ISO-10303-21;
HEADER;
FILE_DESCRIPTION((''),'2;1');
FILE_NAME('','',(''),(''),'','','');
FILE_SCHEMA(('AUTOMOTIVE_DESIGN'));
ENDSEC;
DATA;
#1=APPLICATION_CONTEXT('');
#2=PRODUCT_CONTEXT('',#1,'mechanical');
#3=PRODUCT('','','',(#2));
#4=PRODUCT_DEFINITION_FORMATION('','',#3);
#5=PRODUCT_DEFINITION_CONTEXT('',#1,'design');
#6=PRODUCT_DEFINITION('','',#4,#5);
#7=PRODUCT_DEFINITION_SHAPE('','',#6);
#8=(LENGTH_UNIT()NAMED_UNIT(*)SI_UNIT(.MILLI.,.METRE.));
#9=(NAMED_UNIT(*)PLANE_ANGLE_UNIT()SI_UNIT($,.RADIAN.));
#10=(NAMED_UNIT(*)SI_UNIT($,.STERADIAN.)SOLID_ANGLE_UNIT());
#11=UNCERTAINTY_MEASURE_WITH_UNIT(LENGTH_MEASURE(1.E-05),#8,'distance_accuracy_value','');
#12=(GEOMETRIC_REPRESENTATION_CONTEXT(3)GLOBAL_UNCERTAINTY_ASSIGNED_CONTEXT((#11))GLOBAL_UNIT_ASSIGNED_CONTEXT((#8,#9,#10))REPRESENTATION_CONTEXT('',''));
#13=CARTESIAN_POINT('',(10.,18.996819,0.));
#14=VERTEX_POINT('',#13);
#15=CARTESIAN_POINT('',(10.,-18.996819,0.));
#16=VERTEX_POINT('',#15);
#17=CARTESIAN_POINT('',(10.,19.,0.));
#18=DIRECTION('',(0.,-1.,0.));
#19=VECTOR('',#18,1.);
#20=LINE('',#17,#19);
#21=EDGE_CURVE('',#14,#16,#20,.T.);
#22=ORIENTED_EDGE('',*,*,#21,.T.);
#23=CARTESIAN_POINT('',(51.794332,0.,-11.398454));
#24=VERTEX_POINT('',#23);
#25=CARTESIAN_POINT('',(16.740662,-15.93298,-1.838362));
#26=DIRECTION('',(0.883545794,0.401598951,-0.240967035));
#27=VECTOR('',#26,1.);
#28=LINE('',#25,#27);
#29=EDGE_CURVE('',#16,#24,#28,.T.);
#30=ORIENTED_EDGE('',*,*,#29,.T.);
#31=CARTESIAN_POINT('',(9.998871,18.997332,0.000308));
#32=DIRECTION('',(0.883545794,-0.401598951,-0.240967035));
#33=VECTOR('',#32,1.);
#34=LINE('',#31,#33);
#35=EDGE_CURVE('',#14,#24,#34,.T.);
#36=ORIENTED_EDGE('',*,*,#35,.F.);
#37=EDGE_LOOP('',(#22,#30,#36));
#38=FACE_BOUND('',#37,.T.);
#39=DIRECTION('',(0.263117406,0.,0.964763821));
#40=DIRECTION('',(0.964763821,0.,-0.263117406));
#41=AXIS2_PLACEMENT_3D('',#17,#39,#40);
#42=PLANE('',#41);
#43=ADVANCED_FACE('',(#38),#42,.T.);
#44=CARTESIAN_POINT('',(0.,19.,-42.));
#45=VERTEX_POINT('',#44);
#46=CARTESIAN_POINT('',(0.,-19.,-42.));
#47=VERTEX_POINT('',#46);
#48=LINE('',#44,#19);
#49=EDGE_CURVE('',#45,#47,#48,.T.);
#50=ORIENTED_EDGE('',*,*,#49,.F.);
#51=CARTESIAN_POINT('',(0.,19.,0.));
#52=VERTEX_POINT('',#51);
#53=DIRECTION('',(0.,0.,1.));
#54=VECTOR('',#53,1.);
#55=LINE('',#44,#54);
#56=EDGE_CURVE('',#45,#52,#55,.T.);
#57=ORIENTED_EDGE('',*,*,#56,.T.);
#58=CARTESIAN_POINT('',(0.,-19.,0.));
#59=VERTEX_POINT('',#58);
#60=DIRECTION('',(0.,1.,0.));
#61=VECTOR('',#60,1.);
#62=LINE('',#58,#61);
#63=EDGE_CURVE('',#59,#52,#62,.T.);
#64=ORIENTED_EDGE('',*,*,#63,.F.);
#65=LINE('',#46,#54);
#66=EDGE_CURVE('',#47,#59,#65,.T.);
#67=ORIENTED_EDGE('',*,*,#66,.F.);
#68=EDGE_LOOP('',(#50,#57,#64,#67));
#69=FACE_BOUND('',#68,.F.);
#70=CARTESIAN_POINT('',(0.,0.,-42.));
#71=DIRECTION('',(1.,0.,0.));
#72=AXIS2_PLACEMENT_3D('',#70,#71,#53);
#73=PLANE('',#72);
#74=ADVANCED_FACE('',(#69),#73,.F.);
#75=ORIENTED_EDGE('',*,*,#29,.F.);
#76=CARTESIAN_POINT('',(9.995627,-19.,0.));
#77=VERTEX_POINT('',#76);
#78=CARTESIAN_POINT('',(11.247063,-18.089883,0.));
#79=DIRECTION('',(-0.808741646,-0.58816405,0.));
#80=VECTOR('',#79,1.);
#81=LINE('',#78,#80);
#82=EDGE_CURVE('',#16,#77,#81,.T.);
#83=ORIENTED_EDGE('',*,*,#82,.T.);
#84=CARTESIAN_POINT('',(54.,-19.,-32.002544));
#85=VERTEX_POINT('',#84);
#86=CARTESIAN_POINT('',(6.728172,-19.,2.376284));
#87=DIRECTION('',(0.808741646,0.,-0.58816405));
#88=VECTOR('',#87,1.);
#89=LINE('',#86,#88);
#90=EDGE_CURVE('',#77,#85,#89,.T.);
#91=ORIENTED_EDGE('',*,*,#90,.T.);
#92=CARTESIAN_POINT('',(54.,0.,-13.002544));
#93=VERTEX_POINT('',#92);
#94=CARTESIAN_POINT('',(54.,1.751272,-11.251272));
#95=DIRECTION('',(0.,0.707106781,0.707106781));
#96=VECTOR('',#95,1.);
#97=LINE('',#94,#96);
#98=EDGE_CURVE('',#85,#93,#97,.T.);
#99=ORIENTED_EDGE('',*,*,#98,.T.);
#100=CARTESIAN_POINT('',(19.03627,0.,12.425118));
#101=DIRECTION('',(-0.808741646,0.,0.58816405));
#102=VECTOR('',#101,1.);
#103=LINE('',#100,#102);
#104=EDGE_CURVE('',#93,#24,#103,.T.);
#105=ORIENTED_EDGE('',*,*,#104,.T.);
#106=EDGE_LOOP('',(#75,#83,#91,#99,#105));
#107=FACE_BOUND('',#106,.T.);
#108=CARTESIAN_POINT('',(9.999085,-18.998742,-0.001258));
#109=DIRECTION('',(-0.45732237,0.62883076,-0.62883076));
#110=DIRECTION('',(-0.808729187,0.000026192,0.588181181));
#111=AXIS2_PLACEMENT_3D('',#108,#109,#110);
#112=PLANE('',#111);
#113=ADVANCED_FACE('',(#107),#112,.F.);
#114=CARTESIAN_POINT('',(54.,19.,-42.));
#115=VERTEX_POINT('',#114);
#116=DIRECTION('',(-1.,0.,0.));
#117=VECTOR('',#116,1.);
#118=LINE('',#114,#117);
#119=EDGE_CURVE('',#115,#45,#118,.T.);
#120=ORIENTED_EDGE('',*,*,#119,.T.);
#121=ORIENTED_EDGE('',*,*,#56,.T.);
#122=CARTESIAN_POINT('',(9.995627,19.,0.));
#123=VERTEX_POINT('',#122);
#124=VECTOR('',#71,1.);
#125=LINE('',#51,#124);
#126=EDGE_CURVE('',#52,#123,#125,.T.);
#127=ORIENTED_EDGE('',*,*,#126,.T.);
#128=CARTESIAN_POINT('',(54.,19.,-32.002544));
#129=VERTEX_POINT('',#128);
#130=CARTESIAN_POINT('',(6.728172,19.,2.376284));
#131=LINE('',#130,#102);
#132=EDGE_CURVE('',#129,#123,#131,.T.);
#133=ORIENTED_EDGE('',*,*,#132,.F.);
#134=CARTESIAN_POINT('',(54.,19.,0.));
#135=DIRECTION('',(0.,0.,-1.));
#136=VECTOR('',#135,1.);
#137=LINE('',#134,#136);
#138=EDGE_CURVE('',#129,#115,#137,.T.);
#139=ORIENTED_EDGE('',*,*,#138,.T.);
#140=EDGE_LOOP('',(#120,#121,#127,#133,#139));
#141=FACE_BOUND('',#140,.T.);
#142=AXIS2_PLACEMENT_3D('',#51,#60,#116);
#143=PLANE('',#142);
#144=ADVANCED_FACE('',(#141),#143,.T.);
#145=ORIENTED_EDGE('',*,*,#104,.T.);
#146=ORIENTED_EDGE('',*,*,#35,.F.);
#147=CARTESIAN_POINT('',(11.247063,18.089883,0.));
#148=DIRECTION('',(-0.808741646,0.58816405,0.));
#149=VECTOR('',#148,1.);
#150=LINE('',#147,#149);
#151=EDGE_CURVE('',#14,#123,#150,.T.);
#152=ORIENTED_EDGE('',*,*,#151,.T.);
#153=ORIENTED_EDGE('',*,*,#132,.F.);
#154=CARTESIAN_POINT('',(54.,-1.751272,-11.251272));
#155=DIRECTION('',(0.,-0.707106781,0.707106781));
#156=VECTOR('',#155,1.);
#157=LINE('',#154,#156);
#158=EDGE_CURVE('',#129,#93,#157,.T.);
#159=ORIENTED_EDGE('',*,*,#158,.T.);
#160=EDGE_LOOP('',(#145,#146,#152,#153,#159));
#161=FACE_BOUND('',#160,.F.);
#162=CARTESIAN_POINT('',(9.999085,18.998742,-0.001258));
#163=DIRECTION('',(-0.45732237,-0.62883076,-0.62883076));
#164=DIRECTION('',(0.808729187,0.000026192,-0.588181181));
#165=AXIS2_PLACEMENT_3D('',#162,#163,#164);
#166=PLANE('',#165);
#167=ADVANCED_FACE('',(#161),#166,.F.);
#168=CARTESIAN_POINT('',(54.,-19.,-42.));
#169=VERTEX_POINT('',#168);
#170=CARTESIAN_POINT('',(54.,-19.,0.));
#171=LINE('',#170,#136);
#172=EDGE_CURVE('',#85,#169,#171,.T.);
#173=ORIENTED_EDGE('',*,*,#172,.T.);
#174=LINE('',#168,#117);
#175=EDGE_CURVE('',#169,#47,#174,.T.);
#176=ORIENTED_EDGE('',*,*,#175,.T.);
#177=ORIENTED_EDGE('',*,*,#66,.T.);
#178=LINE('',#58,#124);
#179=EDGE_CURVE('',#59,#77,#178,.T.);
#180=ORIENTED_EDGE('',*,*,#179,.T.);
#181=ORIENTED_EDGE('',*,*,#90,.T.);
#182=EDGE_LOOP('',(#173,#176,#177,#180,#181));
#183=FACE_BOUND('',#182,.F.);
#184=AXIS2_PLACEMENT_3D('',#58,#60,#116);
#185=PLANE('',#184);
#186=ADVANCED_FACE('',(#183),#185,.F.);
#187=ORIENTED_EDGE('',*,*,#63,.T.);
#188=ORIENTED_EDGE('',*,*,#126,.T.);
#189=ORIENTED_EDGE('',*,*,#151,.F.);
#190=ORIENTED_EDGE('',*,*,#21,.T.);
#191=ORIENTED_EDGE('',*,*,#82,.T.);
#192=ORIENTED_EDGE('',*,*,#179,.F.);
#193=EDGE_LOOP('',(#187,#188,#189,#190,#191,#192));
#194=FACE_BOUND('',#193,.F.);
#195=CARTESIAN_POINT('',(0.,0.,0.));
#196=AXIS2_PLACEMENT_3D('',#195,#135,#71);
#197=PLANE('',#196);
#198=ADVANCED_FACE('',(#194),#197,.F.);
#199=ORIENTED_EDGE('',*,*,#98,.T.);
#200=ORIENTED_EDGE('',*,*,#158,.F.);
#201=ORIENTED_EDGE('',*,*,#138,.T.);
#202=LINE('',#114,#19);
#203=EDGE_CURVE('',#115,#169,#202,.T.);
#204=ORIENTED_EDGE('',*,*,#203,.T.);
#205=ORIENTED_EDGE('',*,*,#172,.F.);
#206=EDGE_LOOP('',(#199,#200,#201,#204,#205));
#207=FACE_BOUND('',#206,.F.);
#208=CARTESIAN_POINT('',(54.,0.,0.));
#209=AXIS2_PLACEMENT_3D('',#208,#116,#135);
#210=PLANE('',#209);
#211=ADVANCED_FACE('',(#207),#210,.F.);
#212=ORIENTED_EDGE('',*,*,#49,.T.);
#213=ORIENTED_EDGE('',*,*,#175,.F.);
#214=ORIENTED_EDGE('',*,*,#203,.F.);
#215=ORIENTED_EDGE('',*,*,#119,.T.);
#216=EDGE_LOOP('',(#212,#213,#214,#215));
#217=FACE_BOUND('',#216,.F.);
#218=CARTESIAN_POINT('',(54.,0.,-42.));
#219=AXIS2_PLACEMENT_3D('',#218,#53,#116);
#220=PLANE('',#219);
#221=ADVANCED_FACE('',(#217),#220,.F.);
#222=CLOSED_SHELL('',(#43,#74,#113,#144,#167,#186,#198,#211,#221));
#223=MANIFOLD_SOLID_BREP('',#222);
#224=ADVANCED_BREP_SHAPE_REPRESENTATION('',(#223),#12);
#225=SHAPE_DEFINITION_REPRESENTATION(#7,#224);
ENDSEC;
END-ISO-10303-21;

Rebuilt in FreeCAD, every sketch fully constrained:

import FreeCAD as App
import Part
import Sketcher
from FreeCAD import Vector

doc = App.newDocument("Part")
body = doc.addObject("PartDesign::Body", "Body")

# Sketch on XZ plane
sketch1 = body.newObject("Sketcher::SketchObject", "Sketch")
sketch1.AttachmentSupport = (doc.getObject("XZ_Plane"), [""])
sketch1.MapMode = "FlatFace"
sketch1.addGeometry([
    Part.LineSegment(Vector(0, -42, 0), Vector(0, 0, 0)),
    Part.LineSegment(Vector(0, 0, 0), Vector(54, 0, 0)),
    Part.LineSegment(Vector(54, 0, 0), Vector(54, -42, 0)),
    Part.LineSegment(Vector(54, -42, 0), Vector(0, -42, 0)),
], False)
sketch1.addConstraint([
    Sketcher.Constraint("Coincident", 0, 2, 1, 1),
    Sketcher.Constraint("Coincident", 1, 2, 2, 1),
    Sketcher.Constraint("Coincident", 2, 2, 3, 1),
    Sketcher.Constraint("Coincident", 3, 2, 0, 1),
    Sketcher.Constraint("Vertical", 0),
    Sketcher.Constraint("Horizontal", 1),
    Sketcher.Constraint("Vertical", 2),
    Sketcher.Constraint("Horizontal", 3),
    Sketcher.Constraint("Coincident", 0, 2, -1, 1),
    Sketcher.Constraint("DistanceX", 1, 1, 1, 2, 54.0),
    Sketcher.Constraint("DistanceY", 0, 1, 0, 2, 42.0),
])
pad1 = body.newObject("PartDesign::Pad", "Pad")
pad1.Profile = sketch1
pad1.Length = 38
pad1.Midplane = True

# Sketch on XZ plane
sketch2 = body.newObject("Sketcher::SketchObject", "Sketch001")
sketch2.AttachmentSupport = (doc.getObject("XZ_Plane"), [""])
sketch2.MapMode = "FlatFace"
sketch2.AttachmentOffset = App.Placement(Vector(0, 0, -19), App.Rotation())
sketch2.addGeometry([
    Part.LineSegment(Vector(54, -12, 0), Vector(10, 0, 0)),
    Part.LineSegment(Vector(10, 0, 0), Vector(54, 0, 0)),
    Part.LineSegment(Vector(54, 0, 0), Vector(54, -12, 0)),
], False)
sketch2.addConstraint([
    Sketcher.Constraint("Coincident", 0, 2, 1, 1),
    Sketcher.Constraint("Coincident", 1, 2, 2, 1),
    Sketcher.Constraint("Coincident", 2, 2, 0, 1),
    Sketcher.Constraint("Horizontal", 1),
    Sketcher.Constraint("Vertical", 2),
    Sketcher.Constraint("PointOnObject", 0, 2, -1),
    Sketcher.Constraint("DistanceX", -1, 1, 0, 2, 10.0),
    Sketcher.Constraint("DistanceX", 1, 1, 1, 2, 44.0),
    Sketcher.Constraint("DistanceY", 2, 2, 2, 1, 12.0),
])
pocket1 = body.newObject("PartDesign::Pocket", "Pocket")
pocket1.Profile = sketch2
pocket1.Length = 40
pocket1.Reversed = True

# Sketch on an angled plane
sketch3 = body.newObject("Sketcher::SketchObject", "Sketch002")
sketch3.Placement = App.Placement(Vector(10, 19, 0), App.Rotation(Vector(0.808729187, 0.000026192, -0.588181181), Vector(0.369882889, -0.777542201, 0.508541811), Vector(-0.45732237, -0.62883076, -0.62883076), "ZXY"))
sketch3.addGeometry([
    Part.LineSegment(Vector(-15, 29, 0), Vector(-15, -12, 0)),
    Part.LineSegment(Vector(-15, -12, 0), Vector(94, -12, 0)),
    Part.LineSegment(Vector(94, -12, 0), Vector(94, 29, 0)),
    Part.LineSegment(Vector(94, 29, 0), Vector(-15, 29, 0)),
], False)
sketch3.addConstraint([
    Sketcher.Constraint("Coincident", 0, 2, 1, 1),
    Sketcher.Constraint("Coincident", 1, 2, 2, 1),
    Sketcher.Constraint("Coincident", 2, 2, 3, 1),
    Sketcher.Constraint("Coincident", 3, 2, 0, 1),
    Sketcher.Constraint("Vertical", 0),
    Sketcher.Constraint("Horizontal", 1),
    Sketcher.Constraint("Vertical", 2),
    Sketcher.Constraint("Horizontal", 3),
    Sketcher.Constraint("DistanceX", 1, 1, 1, 2, 108.8713),
    Sketcher.Constraint("DistanceY", 0, 2, 0, 1, 41.1384),
    Sketcher.Constraint("DistanceX", -1, 1, 1, 2, 93.717),
    Sketcher.Constraint("DistanceY", 0, 2, -1, 1, 12.3218),
])
pocket2 = body.newObject("PartDesign::Pocket", "Pocket001")
pocket2.Profile = sketch3
pocket2.Length = 40
doc.recompute()

mirrored = body.newObject("PartDesign::Mirrored", "Mirrored")
mirrored.Originals = [pocket2]
mirrored.MirrorPlane = (doc.getObject("XZ_Plane"), [""])
body.Tip = mirrored

doc.recompute()
